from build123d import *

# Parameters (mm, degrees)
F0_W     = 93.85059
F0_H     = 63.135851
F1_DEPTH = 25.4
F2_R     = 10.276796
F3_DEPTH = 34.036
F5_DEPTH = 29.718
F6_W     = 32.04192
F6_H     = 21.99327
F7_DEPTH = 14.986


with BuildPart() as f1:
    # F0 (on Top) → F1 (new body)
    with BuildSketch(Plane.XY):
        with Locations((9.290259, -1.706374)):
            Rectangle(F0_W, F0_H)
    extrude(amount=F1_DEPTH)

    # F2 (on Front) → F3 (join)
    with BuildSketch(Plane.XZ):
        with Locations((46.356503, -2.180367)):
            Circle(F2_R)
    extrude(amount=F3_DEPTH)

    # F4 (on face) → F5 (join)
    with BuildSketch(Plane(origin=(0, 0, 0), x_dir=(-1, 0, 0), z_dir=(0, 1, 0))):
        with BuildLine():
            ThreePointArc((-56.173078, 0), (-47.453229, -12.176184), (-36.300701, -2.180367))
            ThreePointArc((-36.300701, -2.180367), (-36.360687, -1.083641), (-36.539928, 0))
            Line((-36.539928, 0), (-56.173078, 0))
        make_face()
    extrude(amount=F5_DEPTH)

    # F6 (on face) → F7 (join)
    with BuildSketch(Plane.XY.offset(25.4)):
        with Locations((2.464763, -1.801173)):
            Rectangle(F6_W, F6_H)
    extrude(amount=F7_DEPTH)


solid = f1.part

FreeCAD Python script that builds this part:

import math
import FreeCAD as App
import Part
import Sketcher

V = App.Vector
Q = App.Units.Quantity

doc = App.newDocument("Part")
body = doc.addObject("PartDesign::Body", "Body")

# Sketch on XY plane
sketch1 = body.newObject("Sketcher::SketchObject", "Sketch")
sketch1.AttachmentSupport = (doc.getObject("XY_Plane"), [""])
sketch1.MapMode = "FlatFace"
sketch1.addGeometry(Part.LineSegment(V(-38, 30, 0), V(-38, -33, 0)), False)
sketch1.addGeometry(Part.LineSegment(V(-38, -33, 0), V(56, -33, 0)), False)
sketch1.addGeometry(Part.LineSegment(V(56, -33, 0), V(56, 30, 0)), False)
sketch1.addGeometry(Part.LineSegment(V(56, 30, 0), V(-38, 30, 0)), False)
sketch1.addConstraint(Sketcher.Constraint("Coincident", 0, 2, 1, 1))
sketch1.addConstraint(Sketcher.Constraint("Coincident", 1, 2, 2, 1))
sketch1.addConstraint(Sketcher.Constraint("Coincident", 2, 2, 3, 1))
sketch1.addConstraint(Sketcher.Constraint("Coincident", 3, 2, 0, 1))
sketch1.addConstraint(Sketcher.Constraint("Vertical", 0))
sketch1.addConstraint(Sketcher.Constraint("Horizontal", 1))
sketch1.addConstraint(Sketcher.Constraint("Vertical", 2))
sketch1.addConstraint(Sketcher.Constraint("Horizontal", 3))
sketch1.addConstraint(Sketcher.Constraint("DistanceX", 1, 1, 1, 2, Q("93.85059 mm")))
sketch1.addConstraint(Sketcher.Constraint("DistanceY", 0, 2, 0, 1, Q("63.135851 mm")))
sketch1.addConstraint(Sketcher.Constraint("DistanceY", 0, 2, -1, 1, Q("33.274299 mm")))
sketch1.addConstraint(Sketcher.Constraint("DistanceX", 0, 2, -1, 1, Q("37.635036 mm")))
pad1 = body.newObject("PartDesign::Pad", "Pad")
pad1.Profile = sketch1
pad1.Length = Q("1 in")

# Sketch on XZ plane
sketch2 = body.newObject("Sketcher::SketchObject", "Sketch001")
sketch2.AttachmentSupport = (doc.getObject("XZ_Plane"), [""])
sketch2.MapMode = "FlatFace"
sketch2.addGeometry(Part.Circle(V(46, -2, 0), V(0, 0, 1), 10), False)
sketch2.addConstraint(Sketcher.Constraint("Diameter", 0, Q("20.553592 mm")))
sketch2.addConstraint(Sketcher.Constraint("DistanceX", -1, 1, 0, 3, Q("46.356503 mm")))
sketch2.addConstraint(Sketcher.Constraint("DistanceY", 0, 3, -1, 1, Q("2.180367 mm")))
pad2 = body.newObject("PartDesign::Pad", "Pad001")
pad2.Profile = sketch2
pad2.Length = Q("1.34 in")

# Sketch on XZ plane
sketch3 = body.newObject("Sketcher::SketchObject", "Sketch002")
sketch3.AttachmentSupport = (doc.getObject("XZ_Plane"), [""])
sketch3.MapMode = "FlatFace"
sketch3.addGeometry(Part.ArcOfCircle(Part.Circle(V(46.4, -2.2, 0), V(0, 0, 1), 10.1), math.radians(180), math.radians(373)), False)
sketch3.addGeometry(Part.ArcOfCircle(Part.Circle(V(46.4, -2.2, 0), V(0, 0, 1), 10.1), math.radians(167.48), math.radians(180)), False)
sketch3.addGeometry(Part.LineSegment(V(36.5, 0, 0), V(56.2, 0, 0)), False)
sketch3.addConstraint(Sketcher.Constraint("Tangent", 0, 1, 1, 2))
sketch3.addConstraint(Sketcher.Constraint("Coincident", 1, 1, 2, 1))
sketch3.addConstraint(Sketcher.Constraint("Coincident", 2, 2, 0, 2))
sketch3.addConstraint(Sketcher.Constraint("Horizontal", 2))
sketch3.addConstraint(Sketcher.Constraint("PointOnObject", 1, 1, -1))
sketch3.addConstraint(Sketcher.Constraint("Radius", 0, Q("10.055802 mm")))
sketch3.addConstraint(Sketcher.Constraint("Radius", 1, Q("10.055835 mm")))
sketch3.addConstraint(Sketcher.Constraint("DistanceX", 2, 1, 2, 2, Q("19.63315 mm")))
sketch3.addConstraint(Sketcher.Constraint("DistanceX", -1, 1, 0, 1, Q("36.300701 mm")))
sketch3.addConstraint(Sketcher.Constraint("DistanceY", 0, 1, -1, 1, Q("2.180367 mm")))
pad3 = body.newObject("PartDesign::Pad", "Pad002")
pad3.Profile = sketch3
pad3.Length = Q("1.17 in")
pad3.Reversed = True

# Sketch on XY plane
sketch4 = body.newObject("Sketcher::SketchObject", "Sketch003")
sketch4.AttachmentSupport = (doc.getObject("XY_Plane"), [""])
sketch4.MapMode = "FlatFace"
sketch4.AttachmentOffset = App.Placement(V(0, 0, 1 * 25.4), App.Rotation())
sketch4.addGeometry(Part.LineSegment(V(-14, 9, 0), V(-14, -13, 0)), False)
sketch4.addGeometry(Part.LineSegment(V(-14, -13, 0), V(18, -13, 0)), False)
sketch4.addGeometry(Part.LineSegment(V(18, -13, 0), V(18, 9, 0)), False)
sketch4.addGeometry(Part.LineSegment(V(18, 9, 0), V(-14, 9, 0)), False)
sketch4.addConstraint(Sketcher.Constraint("Coincident", 0, 2, 1, 1))
sketch4.addConstraint(Sketcher.Constraint("Coincident", 1, 2, 2, 1))
sketch4.addConstraint(Sketcher.Constraint("Coincident", 2, 2, 3, 1))
sketch4.addConstraint(Sketcher.Constraint("Coincident", 3, 2, 0, 1))
sketch4.addConstraint(Sketcher.Constraint("Vertical", 0))
sketch4.addConstraint(Sketcher.Constraint("Horizontal", 1))
sketch4.addConstraint(Sketcher.Constraint("Vertical", 2))
sketch4.addConstraint(Sketcher.Constraint("Horizontal", 3))
sketch4.addConstraint(Sketcher.Constraint("DistanceX", 1, 1, 1, 2, Q("32.04192 mm")))
sketch4.addConstraint(Sketcher.Constraint("DistanceY", 0, 2, 0, 1, Q("21.99327 mm")))
sketch4.addConstraint(Sketcher.Constraint("DistanceY", -1, 1, 2, 2, Q("9.195462 mm")))
sketch4.addConstraint(Sketcher.Constraint("DistanceX", 0, 2, -1, 1, Q("13.556197 mm")))
pad4 = body.newObject("PartDesign::Pad", "Pad003")
pad4.Profile = sketch4
pad4.Length = Q("0.59 in")

doc.recompute()
